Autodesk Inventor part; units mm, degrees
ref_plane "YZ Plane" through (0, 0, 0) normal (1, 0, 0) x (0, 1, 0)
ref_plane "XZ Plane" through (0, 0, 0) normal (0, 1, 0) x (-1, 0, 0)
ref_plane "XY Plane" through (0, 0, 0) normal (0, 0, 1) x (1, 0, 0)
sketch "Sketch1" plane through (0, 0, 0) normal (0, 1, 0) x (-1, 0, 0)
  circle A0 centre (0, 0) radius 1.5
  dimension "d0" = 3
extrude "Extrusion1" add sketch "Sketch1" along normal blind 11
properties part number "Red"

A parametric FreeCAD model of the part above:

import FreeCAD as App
import Part
import Sketcher

doc = App.newDocument("Part")
params = doc.addObject("Spreadsheet::Sheet", "Params")
for row, (alias, value) in enumerate([
    ("sketch1_diameter", "3 mm"),
    ("pad1_length", "11 mm"),
], start=1):
    params.set(f"A{row}", alias)
    params.set(f"B{row}", "=" + value)
    params.setAlias(f"B{row}", alias)

body = doc.addObject("PartDesign::Body", "Body")

sketch1 = doc.addObject("Sketcher::SketchObject", "Sketch")
body.addObject(sketch1)
sketch1.AttachmentSupport = (doc.XZ_Plane, [""])
sketch1.MapMode = "FlatFace"
sketch1.addGeometry(Part.Circle(App.Vector(0, 0, 0), App.Vector(0, 0, 1), 1.5), False)
sketch1.addConstraint(Sketcher.Constraint("Coincident", 0, 3, -1, 1))
sketch1.addConstraint(Sketcher.Constraint("Diameter", 0, 3.0))
sketch1.setExpression("Constraints[1]", "Params.sketch1_diameter")
pad1 = doc.addObject("PartDesign::Pad", "Pad")
body.addObject(pad1)
pad1.Profile = sketch1
pad1.setExpression("Length", "Params.pad1_length")
pad1.Reversed = True

doc.recompute()
